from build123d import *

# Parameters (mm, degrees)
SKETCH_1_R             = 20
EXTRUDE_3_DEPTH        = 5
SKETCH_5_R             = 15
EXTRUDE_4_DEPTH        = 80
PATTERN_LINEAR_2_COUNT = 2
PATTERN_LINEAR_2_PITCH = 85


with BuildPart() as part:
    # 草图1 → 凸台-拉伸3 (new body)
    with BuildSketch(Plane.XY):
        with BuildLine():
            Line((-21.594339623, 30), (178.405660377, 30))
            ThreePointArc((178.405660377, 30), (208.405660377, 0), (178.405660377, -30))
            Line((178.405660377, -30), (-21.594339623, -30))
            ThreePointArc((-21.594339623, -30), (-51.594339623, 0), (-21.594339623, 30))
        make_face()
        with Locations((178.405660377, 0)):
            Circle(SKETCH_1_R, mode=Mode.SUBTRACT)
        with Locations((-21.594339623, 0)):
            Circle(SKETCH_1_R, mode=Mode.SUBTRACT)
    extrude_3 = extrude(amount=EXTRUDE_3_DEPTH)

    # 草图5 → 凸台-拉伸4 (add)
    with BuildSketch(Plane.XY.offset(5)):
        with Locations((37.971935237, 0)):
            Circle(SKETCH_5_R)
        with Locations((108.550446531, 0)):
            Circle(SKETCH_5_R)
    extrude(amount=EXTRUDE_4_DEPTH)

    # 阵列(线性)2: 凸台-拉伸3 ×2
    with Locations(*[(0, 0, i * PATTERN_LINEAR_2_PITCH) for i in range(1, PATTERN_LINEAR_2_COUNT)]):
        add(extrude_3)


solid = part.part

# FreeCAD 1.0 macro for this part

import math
import FreeCAD as App
import Part
import Sketcher
Q = App.Units.Quantity

doc = App.newDocument("Part")
body = doc.addObject("PartDesign::Body", "Body")

sketch1 = doc.addObject("Sketcher::SketchObject", "Sketch")
body.addObject(sketch1)
sketch1.AttachmentSupport = (doc.XY_Plane, [""])
sketch1.MapMode = "FlatFace"
sketch1.addGeometry([
    Part.LineSegment(App.Vector(178, 30, 0), App.Vector(-22, 30, 0)),
    Part.ArcOfCircle(Part.Circle(App.Vector(-22, 0, 0), App.Vector(0, 0, 1), 30), math.radians(90), math.radians(270)),
    Part.LineSegment(App.Vector(-22, -30, 0), App.Vector(178, -30, 0)),
    Part.ArcOfCircle(Part.Circle(App.Vector(178, 0, 0), App.Vector(0, 0, 1), 30), math.radians(-90), math.radians(90)),
    Part.Circle(App.Vector(178, 0, 0), App.Vector(0, 0, 1), 20),
    Part.Circle(App.Vector(-22, 0, 0), App.Vector(0, 0, 1), 20),
], False)
sketch1.addConstraint([
    Sketcher.Constraint("Tangent", 0, 2, 1, 1),
    Sketcher.Constraint("Tangent", 1, 2, 2, 1),
    Sketcher.Constraint("Tangent", 2, 2, 3, 1),
    Sketcher.Constraint("Tangent", 3, 2, 0, 1),
    Sketcher.Constraint("Horizontal", 0),
    Sketcher.Constraint("Horizontal", 2),
    Sketcher.Constraint("Coincident", 4, 3, 3, 3),
    Sketcher.Constraint("Coincident", 5, 3, 1, 3),
    Sketcher.Constraint("Equal", 4, 5),
    Sketcher.Constraint("PointOnObject", 1, 3, -1),
    Sketcher.Constraint("Diameter", 4, Q("40 mm")),
    Sketcher.Constraint("Radius", 1, Q("30 mm")),
    Sketcher.Constraint("DistanceX", 0, 2, 0, 1, Q("200 mm")),
    Sketcher.Constraint("DistanceX", 1, 3, -1, 1, Q("21.59434 mm")),
])
pad1 = doc.addObject("PartDesign::Pad", "Pad")
body.addObject(pad1)
pad1.Profile = sketch1
pad1.Length = 5

sketch2 = doc.addObject("Sketcher::SketchObject", "Sketch001")
body.addObject(sketch2)
sketch2.AttachmentSupport = (doc.XY_Plane, [""])
sketch2.MapMode = "FlatFace"
sketch2.AttachmentOffset = App.Placement(App.Vector(0, 0, 5), App.Rotation())
sketch2.addGeometry([
    Part.Circle(App.Vector(38, 0, 0), App.Vector(0, 0, 1), 15),
    Part.Circle(App.Vector(109, 0, 0), App.Vector(0, 0, 1), 15),
], False)
sketch2.addConstraint([
    Sketcher.Constraint("Equal", 0, 1),
    Sketcher.Constraint("PointOnObject", 0, 3, -1),
    Sketcher.Constraint("PointOnObject", 1, 3, -1),
    Sketcher.Constraint("Diameter", 0, Q("30 mm")),
    Sketcher.Constraint("DistanceX", 0, 3, 1, 3, Q("70.578511 mm")),
    Sketcher.Constraint("DistanceX", -1, 1, 0, 3, Q("37.971935 mm")),
])
pad2 = doc.addObject("PartDesign::Pad", "Pad001")
body.addObject(pad2)
pad2.Profile = sketch2
pad2.Length = 80
doc.recompute()

linearpattern = doc.addObject("PartDesign::LinearPattern", "LinearPattern")
body.addObject(linearpattern)
linearpattern.Originals = [pad1]
linearpattern.Direction = (doc.Z_Axis, [""])
linearpattern.Mode = "offset"
linearpattern.Offset = 85
linearpattern.Occurrences = 2
body.Tip = linearpattern

doc.recompute()
